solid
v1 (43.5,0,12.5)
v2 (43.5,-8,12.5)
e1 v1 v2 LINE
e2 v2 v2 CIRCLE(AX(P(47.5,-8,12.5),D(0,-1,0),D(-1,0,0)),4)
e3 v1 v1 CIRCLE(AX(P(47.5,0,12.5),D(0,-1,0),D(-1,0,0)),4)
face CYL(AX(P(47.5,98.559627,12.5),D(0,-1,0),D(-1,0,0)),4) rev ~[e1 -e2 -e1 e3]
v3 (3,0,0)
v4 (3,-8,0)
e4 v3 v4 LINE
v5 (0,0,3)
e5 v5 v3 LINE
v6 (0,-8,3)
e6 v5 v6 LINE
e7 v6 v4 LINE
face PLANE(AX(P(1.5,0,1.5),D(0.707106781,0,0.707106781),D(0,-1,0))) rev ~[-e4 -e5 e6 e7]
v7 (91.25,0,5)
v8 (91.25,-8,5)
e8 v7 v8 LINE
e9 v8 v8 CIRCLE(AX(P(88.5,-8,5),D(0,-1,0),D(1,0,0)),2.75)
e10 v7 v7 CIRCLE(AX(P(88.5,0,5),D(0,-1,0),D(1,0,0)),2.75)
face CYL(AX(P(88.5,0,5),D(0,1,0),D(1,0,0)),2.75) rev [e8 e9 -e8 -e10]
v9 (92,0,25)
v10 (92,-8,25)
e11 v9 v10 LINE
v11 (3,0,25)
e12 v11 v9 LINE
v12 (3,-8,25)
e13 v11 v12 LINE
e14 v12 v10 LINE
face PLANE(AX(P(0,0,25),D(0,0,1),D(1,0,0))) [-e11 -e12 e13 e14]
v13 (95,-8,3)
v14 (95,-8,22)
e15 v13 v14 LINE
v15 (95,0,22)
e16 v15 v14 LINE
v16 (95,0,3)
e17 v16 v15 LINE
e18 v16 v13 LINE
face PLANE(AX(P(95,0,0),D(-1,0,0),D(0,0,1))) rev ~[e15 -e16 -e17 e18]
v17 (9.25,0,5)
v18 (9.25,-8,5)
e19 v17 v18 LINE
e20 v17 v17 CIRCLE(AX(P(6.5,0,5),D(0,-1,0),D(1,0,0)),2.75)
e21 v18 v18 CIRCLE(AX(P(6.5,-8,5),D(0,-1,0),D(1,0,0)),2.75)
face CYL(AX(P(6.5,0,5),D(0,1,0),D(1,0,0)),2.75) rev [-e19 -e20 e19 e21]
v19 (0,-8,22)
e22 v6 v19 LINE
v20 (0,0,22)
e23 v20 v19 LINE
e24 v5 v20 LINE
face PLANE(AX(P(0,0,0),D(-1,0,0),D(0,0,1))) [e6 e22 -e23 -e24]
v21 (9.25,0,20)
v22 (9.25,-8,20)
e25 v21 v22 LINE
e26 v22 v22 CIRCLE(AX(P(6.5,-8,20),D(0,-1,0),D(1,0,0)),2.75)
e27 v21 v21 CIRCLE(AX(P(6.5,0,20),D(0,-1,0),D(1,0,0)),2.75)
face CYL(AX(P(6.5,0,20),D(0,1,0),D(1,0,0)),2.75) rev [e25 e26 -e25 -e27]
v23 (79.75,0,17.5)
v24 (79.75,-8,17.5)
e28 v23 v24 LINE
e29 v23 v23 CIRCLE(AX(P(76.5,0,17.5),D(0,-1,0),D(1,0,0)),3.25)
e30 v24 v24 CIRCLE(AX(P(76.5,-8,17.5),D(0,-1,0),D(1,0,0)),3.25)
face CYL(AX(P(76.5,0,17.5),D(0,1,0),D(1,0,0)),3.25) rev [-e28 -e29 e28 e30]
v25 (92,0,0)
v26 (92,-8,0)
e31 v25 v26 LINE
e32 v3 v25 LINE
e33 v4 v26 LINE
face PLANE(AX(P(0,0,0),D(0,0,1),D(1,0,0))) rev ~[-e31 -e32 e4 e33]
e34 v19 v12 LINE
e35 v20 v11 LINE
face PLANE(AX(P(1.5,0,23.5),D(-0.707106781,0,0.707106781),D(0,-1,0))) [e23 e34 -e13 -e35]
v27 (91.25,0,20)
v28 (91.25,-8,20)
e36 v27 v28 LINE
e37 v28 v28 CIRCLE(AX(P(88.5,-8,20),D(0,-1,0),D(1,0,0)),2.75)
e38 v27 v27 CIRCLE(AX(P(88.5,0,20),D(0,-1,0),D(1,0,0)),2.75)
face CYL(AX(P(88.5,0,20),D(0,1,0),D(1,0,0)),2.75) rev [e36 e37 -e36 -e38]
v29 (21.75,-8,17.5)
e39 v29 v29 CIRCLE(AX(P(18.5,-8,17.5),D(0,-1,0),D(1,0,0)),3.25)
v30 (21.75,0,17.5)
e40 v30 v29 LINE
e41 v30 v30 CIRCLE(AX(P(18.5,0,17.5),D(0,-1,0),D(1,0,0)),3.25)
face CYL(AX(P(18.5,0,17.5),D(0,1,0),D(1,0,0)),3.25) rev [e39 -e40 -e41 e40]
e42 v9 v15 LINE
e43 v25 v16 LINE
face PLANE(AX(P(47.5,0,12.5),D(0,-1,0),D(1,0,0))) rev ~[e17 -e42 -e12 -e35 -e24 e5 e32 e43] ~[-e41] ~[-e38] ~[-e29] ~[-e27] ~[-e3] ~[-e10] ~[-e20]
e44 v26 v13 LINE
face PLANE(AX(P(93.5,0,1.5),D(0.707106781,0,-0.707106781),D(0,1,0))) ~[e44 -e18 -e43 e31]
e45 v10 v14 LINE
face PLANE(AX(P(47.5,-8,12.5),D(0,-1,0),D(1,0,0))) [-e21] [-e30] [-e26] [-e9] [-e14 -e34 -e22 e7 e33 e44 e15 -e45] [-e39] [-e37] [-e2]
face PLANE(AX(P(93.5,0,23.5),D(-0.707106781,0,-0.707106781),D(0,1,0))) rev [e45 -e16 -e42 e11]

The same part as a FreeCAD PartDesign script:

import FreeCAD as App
import Part
import Sketcher

V = App.Vector
Q = App.Units.Quantity


def edges_at(feature, points):
    """Names of the edges that pass closest to the given points."""
    edges = feature.Shape.Edges
    near = lambda p: min(range(len(edges)), key=lambda i: edges[i].distToShape(Part.Vertex(*p))[0])
    return sorted({f"Edge{near(p) + 1}" for p in points})


def add_polygon(sketch, points):
    """Adds a closed chain of lines whose ends are joined by coincident constraints."""
    first, n = sketch.GeometryCount, len(points)
    for a, b in zip(points, points[1:] + points[:1]):
        sketch.addGeometry(Part.LineSegment(App.Vector(*a, 0), App.Vector(*b, 0)), False)
    for i in range(n):
        sketch.addConstraint(Sketcher.Constraint("Coincident", first + i, 2, first + (i + 1) % n, 1))

doc = App.newDocument("Part")
body = doc.addObject("PartDesign::Body", "Body")

# Sketch on XZ plane
sketch1 = body.newObject("Sketcher::SketchObject", "Sketch")
sketch1.AttachmentSupport = (doc.getObject("XZ_Plane"), [""])
sketch1.MapMode = "FlatFace"
add_polygon(sketch1, [(0, 25), (0, 0), (95, 0), (95, 25)])  # lines 0-3
sketch1.addGeometry(Part.Circle(V(6.5, 5, 0), V(0, 0, 1), 2.8), False)  # 4
sketch1.addGeometry(Part.Circle(V(88.5, 5, 0), V(0, 0, 1), 2.8), False)  # 5
sketch1.addGeometry(Part.Circle(V(18.5, 17.5, 0), V(0, 0, 1), 3.2), False)  # 6
sketch1.addGeometry(Part.Circle(V(6.5, 20, 0), V(0, 0, 1), 2.8), False)  # 7
sketch1.addGeometry(Part.Circle(V(76.5, 17.5, 0), V(0, 0, 1), 3.2), False)  # 8
sketch1.addGeometry(Part.Circle(V(88.5, 20, 0), V(0, 0, 1), 2.8), False)  # 9
sketch1.addConstraint([
    Sketcher.Constraint("Vertical", 0),
    Sketcher.Constraint("Horizontal", 1),
    Sketcher.Constraint("Vertical", 2),
    Sketcher.Constraint("Horizontal", 3),
    Sketcher.Constraint("Coincident", 0, 2, -1, 1),
    Sketcher.Constraint("Equal", 4, 5),
    Sketcher.Constraint("Equal", 5, 7),
    Sketcher.Constraint("Equal", 6, 8),
    Sketcher.Constraint("Equal", 7, 9),
    Sketcher.Constraint("Horizontal", 4, 3, 5, 3),
    Sketcher.Constraint("Horizontal", 6, 3, 8, 3),
    Sketcher.Constraint("Horizontal", 7, 3, 9, 3),
    Sketcher.Constraint("Vertical", 4, 3, 7, 3),
    Sketcher.Constraint("Vertical", 5, 3, 9, 3),
    Sketcher.Constraint("Diameter", 4, Q("5.5 mm")),
    Sketcher.Constraint("Diameter", 6, Q("6.5 mm")),
    Sketcher.Constraint("DistanceX", 1, 1, 1, 2, Q("95 mm")),
    Sketcher.Constraint("DistanceY", 0, 2, 0, 1, Q("25 mm")),
    Sketcher.Constraint("DistanceY", -1, 1, 4, 3, Q("5 mm")),
    Sketcher.Constraint("DistanceY", -1, 1, 7, 3, Q("20 mm")),
    Sketcher.Constraint("DistanceX", 4, 3, 5, 3, Q("82 mm")),
    Sketcher.Constraint("DistanceX", 4, 3, 6, 3, Q("12 mm")),
    Sketcher.Constraint("DistanceX", 8, 3, 5, 3, Q("12 mm")),
    Sketcher.Constraint("DistanceX", -1, 1, 4, 3, Q("6.5 mm")),
    Sketcher.Constraint("DistanceY", -1, 1, 6, 3, Q("17.5 mm")),
])
pad1 = body.newObject("PartDesign::Pad", "Pad")
pad1.Profile = sketch1
pad1.Length = 8

# Sketch on XZ plane
sketch2 = body.newObject("Sketcher::SketchObject", "Sketch001")
sketch2.AttachmentSupport = (doc.getObject("XZ_Plane"), [""])
sketch2.MapMode = "FlatFace"
sketch2.addGeometry(Part.Circle(V(47.5, 12.5, 0), V(0, 0, 1), 4), False)
sketch2.addConstraint([
    Sketcher.Constraint("Diameter", 0, Q("8 mm")),
    Sketcher.Constraint("DistanceX", -1, 1, 0, 3, Q("47.5 mm")),
    Sketcher.Constraint("DistanceY", -1, 1, 0, 3, Q("12.5 mm")),
])
doc.recompute()
hole = body.newObject("PartDesign::Hole", "Hole")
hole.Profile = sketch2
hole.ThreadType = "None"
hole.Diameter = 8
hole.DepthType = "ThroughAll"
hole.Reversed = True
doc.recompute()

chamfer = body.newObject("PartDesign::Chamfer", "Chamfer")
chamfer.Base = (hole, edges_at(hole, [
    (95, -4, 25),
    (95, -4, 0),
    (0, -4, 25),
    (0, -4, 0),
]))
chamfer.Size = 3

doc.recompute()
